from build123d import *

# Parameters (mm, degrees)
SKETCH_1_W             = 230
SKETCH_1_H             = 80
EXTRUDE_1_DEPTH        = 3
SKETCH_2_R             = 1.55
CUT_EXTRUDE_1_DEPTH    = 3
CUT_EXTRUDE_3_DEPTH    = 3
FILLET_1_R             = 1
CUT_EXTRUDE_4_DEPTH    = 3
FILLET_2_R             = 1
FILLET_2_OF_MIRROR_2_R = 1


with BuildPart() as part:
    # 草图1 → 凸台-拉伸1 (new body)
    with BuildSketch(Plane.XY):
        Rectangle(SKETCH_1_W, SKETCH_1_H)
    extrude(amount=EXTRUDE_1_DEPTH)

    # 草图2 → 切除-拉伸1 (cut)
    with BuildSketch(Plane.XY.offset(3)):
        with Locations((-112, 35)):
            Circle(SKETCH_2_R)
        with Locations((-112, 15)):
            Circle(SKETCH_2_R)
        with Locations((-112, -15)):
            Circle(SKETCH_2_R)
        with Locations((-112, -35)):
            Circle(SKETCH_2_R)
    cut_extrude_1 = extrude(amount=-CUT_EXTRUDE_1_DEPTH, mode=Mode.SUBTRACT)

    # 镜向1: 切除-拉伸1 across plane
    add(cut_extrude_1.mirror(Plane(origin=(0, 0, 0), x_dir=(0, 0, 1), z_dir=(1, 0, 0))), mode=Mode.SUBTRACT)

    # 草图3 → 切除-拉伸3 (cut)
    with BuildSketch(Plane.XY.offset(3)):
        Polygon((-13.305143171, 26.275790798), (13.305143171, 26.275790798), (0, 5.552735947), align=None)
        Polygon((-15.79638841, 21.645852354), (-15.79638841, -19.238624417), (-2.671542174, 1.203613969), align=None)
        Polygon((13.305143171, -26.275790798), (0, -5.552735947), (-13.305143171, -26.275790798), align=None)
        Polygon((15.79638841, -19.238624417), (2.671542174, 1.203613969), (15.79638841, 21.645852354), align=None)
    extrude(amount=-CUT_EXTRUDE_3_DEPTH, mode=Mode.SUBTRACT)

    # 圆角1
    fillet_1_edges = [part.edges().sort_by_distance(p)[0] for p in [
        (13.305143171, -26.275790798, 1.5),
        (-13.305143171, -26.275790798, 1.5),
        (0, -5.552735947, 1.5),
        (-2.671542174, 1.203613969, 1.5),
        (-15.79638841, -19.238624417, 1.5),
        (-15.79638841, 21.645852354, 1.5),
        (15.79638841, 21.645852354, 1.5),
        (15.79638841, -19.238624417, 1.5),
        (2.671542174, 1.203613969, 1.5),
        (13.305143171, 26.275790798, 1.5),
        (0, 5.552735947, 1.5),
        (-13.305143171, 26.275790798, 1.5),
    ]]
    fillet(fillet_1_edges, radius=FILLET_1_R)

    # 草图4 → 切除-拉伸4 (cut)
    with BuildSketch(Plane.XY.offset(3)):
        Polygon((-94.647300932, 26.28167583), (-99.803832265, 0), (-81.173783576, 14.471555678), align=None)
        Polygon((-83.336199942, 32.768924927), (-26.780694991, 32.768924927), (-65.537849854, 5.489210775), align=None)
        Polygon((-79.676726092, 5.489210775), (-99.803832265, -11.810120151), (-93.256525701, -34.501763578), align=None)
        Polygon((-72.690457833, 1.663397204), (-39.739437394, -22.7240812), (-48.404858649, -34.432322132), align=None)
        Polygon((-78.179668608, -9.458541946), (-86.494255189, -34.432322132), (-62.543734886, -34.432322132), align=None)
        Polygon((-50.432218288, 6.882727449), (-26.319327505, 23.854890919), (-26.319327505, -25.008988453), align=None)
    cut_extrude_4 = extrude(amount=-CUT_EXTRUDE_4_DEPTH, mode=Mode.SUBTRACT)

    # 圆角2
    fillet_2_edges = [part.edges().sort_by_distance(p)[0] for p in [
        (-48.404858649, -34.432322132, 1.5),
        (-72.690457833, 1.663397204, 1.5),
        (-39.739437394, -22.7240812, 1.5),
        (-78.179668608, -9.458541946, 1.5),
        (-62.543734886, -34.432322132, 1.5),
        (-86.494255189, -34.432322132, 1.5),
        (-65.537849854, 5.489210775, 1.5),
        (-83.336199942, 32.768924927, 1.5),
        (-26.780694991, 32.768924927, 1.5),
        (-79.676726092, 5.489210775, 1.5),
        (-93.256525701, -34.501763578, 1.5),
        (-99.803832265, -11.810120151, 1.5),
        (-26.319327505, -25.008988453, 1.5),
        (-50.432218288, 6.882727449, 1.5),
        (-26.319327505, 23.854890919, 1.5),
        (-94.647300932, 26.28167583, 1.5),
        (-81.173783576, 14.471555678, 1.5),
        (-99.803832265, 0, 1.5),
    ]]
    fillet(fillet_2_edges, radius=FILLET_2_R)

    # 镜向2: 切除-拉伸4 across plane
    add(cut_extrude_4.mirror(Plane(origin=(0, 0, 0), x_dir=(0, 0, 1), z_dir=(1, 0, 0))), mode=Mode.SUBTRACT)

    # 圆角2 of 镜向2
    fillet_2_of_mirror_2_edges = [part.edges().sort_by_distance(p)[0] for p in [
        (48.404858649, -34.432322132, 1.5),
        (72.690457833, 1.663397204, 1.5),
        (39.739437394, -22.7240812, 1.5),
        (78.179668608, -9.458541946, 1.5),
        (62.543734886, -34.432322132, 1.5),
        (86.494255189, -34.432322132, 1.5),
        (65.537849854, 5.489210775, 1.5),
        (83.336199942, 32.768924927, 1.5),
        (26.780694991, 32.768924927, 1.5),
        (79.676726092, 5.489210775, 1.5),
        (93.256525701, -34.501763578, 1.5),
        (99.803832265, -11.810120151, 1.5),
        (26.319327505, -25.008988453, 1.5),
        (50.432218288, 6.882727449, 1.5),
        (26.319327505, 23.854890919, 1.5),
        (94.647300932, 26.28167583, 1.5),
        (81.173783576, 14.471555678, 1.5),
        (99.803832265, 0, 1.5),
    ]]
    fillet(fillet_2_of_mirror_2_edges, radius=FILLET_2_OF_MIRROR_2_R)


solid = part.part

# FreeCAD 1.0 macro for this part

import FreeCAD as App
import Part
import Sketcher

V = App.Vector


def edges_at(feature, points):
    """Names of the edges that pass closest to the given points."""
    edges = feature.Shape.Edges
    near = lambda p: min(range(len(edges)), key=lambda i: edges[i].distToShape(Part.Vertex(*p))[0])
    return sorted({f"Edge{near(p) + 1}" for p in points})

doc = App.newDocument("Part")
params = doc.addObject("Spreadsheet::Sheet", "Params")
for row, (alias, value) in enumerate([
    ("sketch1_width", "230 mm"),
    ("sketch1_height", "80 mm"),
    ("pad1_length", "3 mm"),
    ("sketch2_diameter", "3.1 mm"),
    ("pocket1_length", "3 mm"),
    ("pocket2_length", "3 mm"),
    ("fillet_radius", "1 mm"),
    ("pocket3_length", "3 mm"),
    ("fillet2_radius", "1 mm"),
    ("fillet3_radius", "1 mm"),
], start=1):
    params.set(f"A{row}", alias)
    params.set(f"B{row}", "=" + value)
    params.setAlias(f"B{row}", alias)

body = doc.addObject("PartDesign::Body", "Body")

# Sketch on XY plane
sketch1 = body.newObject("Sketcher::SketchObject", "Sketch")
sketch1.AttachmentSupport = (doc.getObject("XY_Plane"), [""])
sketch1.MapMode = "FlatFace"
sketch1.addGeometry([
    Part.LineSegment(V(-115, 40, 0), V(-115, -40, 0)),
    Part.LineSegment(V(-115, -40, 0), V(115, -40, 0)),
    Part.LineSegment(V(115, -40, 0), V(115, 40, 0)),
    Part.LineSegment(V(115, 40, 0), V(-115, 40, 0)),
], False)
sketch1.addConstraint([
    Sketcher.Constraint("Coincident", 0, 2, 1, 1),
    Sketcher.Constraint("Coincident", 1, 2, 2, 1),
    Sketcher.Constraint("Coincident", 2, 2, 3, 1),
    Sketcher.Constraint("Coincident", 3, 2, 0, 1),
    Sketcher.Constraint("Vertical", 0),
    Sketcher.Constraint("Horizontal", 1),
    Sketcher.Constraint("Vertical", 2),
    Sketcher.Constraint("Horizontal", 3),
    Sketcher.Constraint("Symmetric", 0, 2, 2, 2, -1, 1),
    Sketcher.Constraint("DistanceX", 1, 1, 1, 2, 230.0),
    Sketcher.Constraint("DistanceY", 0, 2, 0, 1, 80.0),
])
sketch1.setExpression("Constraints[9]", "Params.sketch1_width")
sketch1.setExpression("Constraints[10]", "Params.sketch1_height")
pad1 = body.newObject("PartDesign::Pad", "Pad")
pad1.Profile = sketch1
pad1.setExpression("Length", "Params.pad1_length")

# Sketch on XY plane
sketch2 = body.newObject("Sketcher::SketchObject", "Sketch001")
sketch2.AttachmentSupport = (doc.getObject("XY_Plane"), [""])
sketch2.MapMode = "FlatFace"
sketch2.AttachmentOffset = App.Placement(V(0, 0, 3), App.Rotation())
sketch2.addGeometry([
    Part.Circle(V(-112, 35, 0), V(0, 0, 1), 1.6),
    Part.Circle(V(-112, 15, 0), V(0, 0, 1), 1.6),
    Part.Circle(V(-112, -15, 0), V(0, 0, 1), 1.6),
    Part.Circle(V(-112, -35, 0), V(0, 0, 1), 1.6),
], False)
sketch2.addConstraint([
    Sketcher.Constraint("Equal", 0, 1),
    Sketcher.Constraint("Equal", 1, 2),
    Sketcher.Constraint("Equal", 2, 3),
    Sketcher.Constraint("Symmetric", 1, 3, 2, 3, -1),
    Sketcher.Constraint("Symmetric", 0, 3, 3, 3, -1),
    Sketcher.Constraint("Vertical", 0, 3, 1, 3),
    Sketcher.Constraint("Diameter", 0, 3.1),
    Sketcher.Constraint("DistanceX", 0, 3, -1, 1, 112.0),
    Sketcher.Constraint("DistanceY", -1, 1, 0, 3, 35.0),
    Sketcher.Constraint("DistanceY", -1, 1, 1, 3, 15.0),
])
sketch2.setExpression("Constraints[6]", "Params.sketch2_diameter")
pocket1 = body.newObject("PartDesign::Pocket", "Pocket")
pocket1.Profile = sketch2
pocket1.setExpression("Length", "Params.pocket1_length")
doc.recompute()

mirrored = body.newObject("PartDesign::Mirrored", "Mirrored")
mirrored.Originals = [pocket1]
mirrored.MirrorPlane = (doc.getObject("YZ_Plane"), [""])
body.Tip = mirrored

# Sketch on XY plane
sketch3 = body.newObject("Sketcher::SketchObject", "Sketch002")
sketch3.AttachmentSupport = (doc.getObject("XY_Plane"), [""])
sketch3.MapMode = "FlatFace"
sketch3.AttachmentOffset = App.Placement(V(0, 0, 3), App.Rotation())
sketch3.addGeometry([
    Part.LineSegment(V(13, 26, 0), V(-13, 26, 0)),  # 0
    Part.LineSegment(V(-13, 26, 0), V(0, 6, 0)),  # 1
    Part.LineSegment(V(0, 6, 0), V(13, 26, 0)),  # 2
    Part.LineSegment(V(-16, 22, 0), V(-16, -19, 0)),  # 3
    Part.LineSegment(V(-16, -19, 0), V(-3, 1, 0)),  # 4
    Part.LineSegment(V(-3, 1, 0), V(-16, 22, 0)),  # 5
    Part.LineSegment(V(13, -26, 0), V(0, -6, 0)),  # 6
    Part.LineSegment(V(0, -6, 0), V(-13, -26, 0)),  # 7
    Part.LineSegment(V(-13, -26, 0), V(13, -26, 0)),  # 8
    Part.LineSegment(V(3, 1, 0), V(16, -19, 0)),  # 9
    Part.LineSegment(V(16, -19, 0), V(16, 22, 0)),  # 10
    Part.LineSegment(V(16, 22, 0), V(3, 1, 0)),  # 11
], False)
sketch3.addConstraint([
    Sketcher.Constraint("Coincident", 0, 2, 1, 1),
    Sketcher.Constraint("Coincident", 1, 2, 2, 1),
    Sketcher.Constraint("Coincident", 2, 2, 0, 1),
    Sketcher.Constraint("Coincident", 3, 2, 4, 1),
    Sketcher.Constraint("Coincident", 4, 2, 5, 1),
    Sketcher.Constraint("Coincident", 5, 2, 3, 1),
    Sketcher.Constraint("Coincident", 6, 2, 7, 1),
    Sketcher.Constraint("Coincident", 7, 2, 8, 1),
    Sketcher.Constraint("Coincident", 8, 2, 6, 1),
    Sketcher.Constraint("Coincident", 9, 2, 10, 1),
    Sketcher.Constraint("Coincident", 10, 2, 11, 1),
    Sketcher.Constraint("Coincident", 11, 2, 9, 1),
    Sketcher.Constraint("Horizontal", 0),
    Sketcher.Constraint("Vertical", 3),
    Sketcher.Constraint("Horizontal", 8),
    Sketcher.Constraint("Vertical", 10),
    Sketcher.Constraint("Symmetric", 1, 2, 6, 2, -1, 1),
    Sketcher.Constraint("Symmetric", 2, 2, 7, 2, -1, 1),
    Sketcher.Constraint("Symmetric", 3, 2, 9, 2, -2),
    Sketcher.Constraint("Symmetric", 4, 2, 11, 2, -2),
    Sketcher.Constraint("PointOnObject", 1, 2, -2),
    Sketcher.Constraint("Parallel", 2, 4),
    Sketcher.Constraint("Parallel", 1, 5),
    Sketcher.Constraint("Parallel", 5, 6),
    Sketcher.Constraint("Parallel", 6, 9),
    Sketcher.Constraint("Parallel", 7, 11),
    Sketcher.Constraint("DistanceX", 0, 2, 4, 2, 10.633601),
    Sketcher.Constraint("Distance", 1, 24.626649),
    Sketcher.Constraint("DistanceX", 0, 2, 0, 1, 26.610286),
    Sketcher.Constraint("DistanceY", 3, 2, 3, 1, 40.884477),
    Sketcher.Constraint("DistanceY", -1, 1, 0, 2, 26.275791),
    Sketcher.Constraint("DistanceY", 3, 2, 1, 2, 24.79136),
])
pocket2 = body.newObject("PartDesign::Pocket", "Pocket001")
pocket2.Profile = sketch3
pocket2.setExpression("Length", "Params.pocket2_length")
doc.recompute()

fillet = body.newObject("PartDesign::Fillet", "Fillet")
fillet.Base = (pocket2, edges_at(pocket2, [
    (13.305, -26.276, 1.5),
    (-13.305, -26.276, 1.5),
    (0, -5.553, 1.5),
    (-2.672, 1.204, 1.5),
    (-15.796, -19.239, 1.5),
    (-15.796, 21.646, 1.5),
    (15.796, 21.646, 1.5),
    (15.796, -19.239, 1.5),
    (2.672, 1.204, 1.5),
    (13.305, 26.276, 1.5),
    (0, 5.553, 1.5),
    (-13.305, 26.276, 1.5),
]))
fillet.setExpression("Radius", "Params.fillet_radius")

# Sketch on XY plane
sketch4 = body.newObject("Sketcher::SketchObject", "Sketch003")
sketch4.AttachmentSupport = (doc.getObject("XY_Plane"), [""])
sketch4.MapMode = "FlatFace"
sketch4.AttachmentOffset = App.Placement(V(0, 0, 3), App.Rotation())
sketch4.addGeometry([
    Part.LineSegment(V(-95, 26, 0), V(-100, 0, 0)),  # 0
    Part.LineSegment(V(-100, 0, 0), V(-81, 14, 0)),  # 1
    Part.LineSegment(V(-81, 14, 0), V(-95, 26, 0)),  # 2
    Part.LineSegment(V(-27, 33, 0), V(-83, 33, 0)),  # 3
    Part.LineSegment(V(-83, 33, 0), V(-66, 5, 0)),  # 4
    Part.LineSegment(V(-66, 5, 0), V(-27, 33, 0)),  # 5
    Part.LineSegment(V(-80, 5, 0), V(-100, -12, 0)),  # 6
    Part.LineSegment(V(-100, -12, 0), V(-93, -35, 0)),  # 7
    Part.LineSegment(V(-93, -35, 0), V(-80, 5, 0)),  # 8
    Part.LineSegment(V(-40, -23, 0), V(-73, 2, 0)),  # 9
    Part.LineSegment(V(-73, 2, 0), V(-48, -34, 0)),  # 10
    Part.LineSegment(V(-48, -34, 0), V(-40, -23, 0)),  # 11
    Part.LineSegment(V(-78, -9, 0), V(-86, -34, 0)),  # 12
    Part.LineSegment(V(-86, -34, 0), V(-63, -34, 0)),  # 13
    Part.LineSegment(V(-63, -34, 0), V(-78, -9, 0)),  # 14
    Part.LineSegment(V(-26, 24, 0), V(-50, 7, 0)),  # 15
    Part.LineSegment(V(-50, 7, 0), V(-26, -25, 0)),  # 16
    Part.LineSegment(V(-26, -25, 0), V(-26, 24, 0)),  # 17
], False)
sketch4.addConstraint([
    Sketcher.Constraint("Coincident", 0, 2, 1, 1),
    Sketcher.Constraint("Coincident", 1, 2, 2, 1),
    Sketcher.Constraint("Coincident", 2, 2, 0, 1),
    Sketcher.Constraint("Coincident", 3, 2, 4, 1),
    Sketcher.Constraint("Coincident", 4, 2, 5, 1),
    Sketcher.Constraint("Coincident", 5, 2, 3, 1),
    Sketcher.Constraint("Coincident", 6, 2, 7, 1),
    Sketcher.Constraint("Coincident", 7, 2, 8, 1),
    Sketcher.Constraint("Coincident", 8, 2, 6, 1),
    Sketcher.Constraint("Coincident", 9, 2, 10, 1),
    Sketcher.Constraint("Coincident", 10, 2, 11, 1),
    Sketcher.Constraint("Coincident", 11, 2, 9, 1),
    Sketcher.Constraint("Coincident", 12, 2, 13, 1),
    Sketcher.Constraint("Coincident", 13, 2, 14, 1),
    Sketcher.Constraint("Coincident", 14, 2, 12, 1),
    Sketcher.Constraint("Coincident", 15, 2, 16, 1),
    Sketcher.Constraint("Coincident", 16, 2, 17, 1),
    Sketcher.Constraint("Coincident", 17, 2, 15, 1),
    Sketcher.Constraint("Horizontal", 3),
    Sketcher.Constraint("Horizontal", 13),
    Sketcher.Constraint("Vertical", 17),
    Sketcher.Constraint("PointOnObject", 0, 2, -1),
    Sketcher.Constraint("Perpendicular", 9, 11),
    Sketcher.Constraint("Parallel", 5, 15),
    Sketcher.Constraint("Horizontal", 4, 2, 8, 2),
    Sketcher.Constraint("Horizontal", 10, 2, 12, 2),
    Sketcher.Constraint("Vertical", 0, 2, 6, 2),
    Sketcher.Constraint("DistanceX", 13, 1, 13, 2, 23.95052),
    Sketcher.Constraint("DistanceY", 17, 1, 17, 2, 48.863879),
    Sketcher.Constraint("DistanceX", 2, 2, -1, 1, 94.647301),
    Sketcher.Constraint("DistanceX", 3, 2, -1, 1, 83.3362),
    Sketcher.Constraint("DistanceX", 9, 2, 10, 2, 24.285599),
    Sketcher.Constraint("DistanceY", 10, 2, 6, 2, 22.622202),
    Sketcher.Constraint("DistanceY", 16, 2, 4, 2, 30.498199),
    Sketcher.Constraint("Distance", 0, 26.782761),
    Sketcher.Constraint("Distance", 1, 23.590351),
    Sketcher.Constraint("Distance", 2, 17.916881),
    Sketcher.Constraint("Distance", 6, 26.539918),
    Sketcher.Constraint("Distance", 9, 40.994132),
    Sketcher.Constraint("Distance", 10, 43.505072),
    Sketcher.Constraint("Distance", 14, 29.464761),
    Sketcher.Constraint("Distance", 16, 39.981409),
    Sketcher.Constraint("DistanceX", 3, 2, 3, 1, 56.555505),
    Sketcher.Constraint("DistanceX", 4, 2, -1, 1, 65.53785),
    Sketcher.Constraint("DistanceY", -1, 1, 4, 2, 5.489211),
    Sketcher.Constraint("DistanceY", 6, 2, -1, 1, 11.81012),
    Sketcher.Constraint("DistanceX", 10, 2, -1, 1, 48.404859),
    Sketcher.Constraint("DistanceX", 14, 2, -1, 1, 78.179669),
    Sketcher.Constraint("DistanceY", 14, 2, -1, 1, 9.458542),
    Sketcher.Constraint("DistanceX", 15, 2, -1, 1, 50.432218),
    Sketcher.Constraint("DistanceX", 0, 2, 1, 2, 18.630049),
    Sketcher.Constraint("DistanceY", 2, 2, 3, 2, 6.487249),
    Sketcher.Constraint("DistanceY", 7, 2, 1, 2, 48.973319),
    Sketcher.Constraint("DistanceX", 7, 2, 11, 2, 53.517088),
])
pocket3 = body.newObject("PartDesign::Pocket", "Pocket002")
pocket3.Profile = sketch4
pocket3.setExpression("Length", "Params.pocket3_length")
doc.recompute()

fillet2 = body.newObject("PartDesign::Fillet", "Fillet001")
fillet2.Base = (pocket3, edges_at(pocket3, [
    (-48.405, -34.432, 1.5),
    (-72.69, 1.663, 1.5),
    (-39.739, -22.724, 1.5),
    (-78.18, -9.459, 1.5),
    (-62.544, -34.432, 1.5),
    (-86.494, -34.432, 1.5),
    (-65.538, 5.489, 1.5),
    (-83.336, 32.769, 1.5),
    (-26.781, 32.769, 1.5),
    (-79.677, 5.489, 1.5),
    (-93.257, -34.502, 1.5),
    (-99.804, -11.81, 1.5),
    (-26.319, -25.009, 1.5),
    (-50.432, 6.883, 1.5),
    (-26.319, 23.855, 1.5),
    (-94.647, 26.282, 1.5),
    (-81.174, 14.472, 1.5),
    (-99.804, 0, 1.5),
]))
fillet2.setExpression("Radius", "Params.fillet2_radius")
doc.recompute()

mirrored2 = body.newObject("PartDesign::Mirrored", "Mirrored001")
mirrored2.Originals = [pocket3]
mirrored2.MirrorPlane = (doc.getObject("YZ_Plane"), [""])
body.Tip = mirrored2
doc.recompute()

fillet3 = body.newObject("PartDesign::Fillet", "Fillet002")
fillet3.Base = (mirrored2, edges_at(mirrored2, [
    (48.405, -34.432, 1.5),
    (72.69, 1.663, 1.5),
    (39.739, -22.724, 1.5),
    (78.18, -9.459, 1.5),
    (62.544, -34.432, 1.5),
    (86.494, -34.432, 1.5),
    (65.538, 5.489, 1.5),
    (83.336, 32.769, 1.5),
    (26.781, 32.769, 1.5),
    (79.677, 5.489, 1.5),
    (93.257, -34.502, 1.5),
    (99.804, -11.81, 1.5),
    (26.319, -25.009, 1.5),
    (50.432, 6.883, 1.5),
    (26.319, 23.855, 1.5),
    (94.647, 26.282, 1.5),
    (81.174, 14.472, 1.5),
    (99.804, 0, 1.5),
]))
fillet3.setExpression("Radius", "Params.fillet3_radius")

doc.recompute()
